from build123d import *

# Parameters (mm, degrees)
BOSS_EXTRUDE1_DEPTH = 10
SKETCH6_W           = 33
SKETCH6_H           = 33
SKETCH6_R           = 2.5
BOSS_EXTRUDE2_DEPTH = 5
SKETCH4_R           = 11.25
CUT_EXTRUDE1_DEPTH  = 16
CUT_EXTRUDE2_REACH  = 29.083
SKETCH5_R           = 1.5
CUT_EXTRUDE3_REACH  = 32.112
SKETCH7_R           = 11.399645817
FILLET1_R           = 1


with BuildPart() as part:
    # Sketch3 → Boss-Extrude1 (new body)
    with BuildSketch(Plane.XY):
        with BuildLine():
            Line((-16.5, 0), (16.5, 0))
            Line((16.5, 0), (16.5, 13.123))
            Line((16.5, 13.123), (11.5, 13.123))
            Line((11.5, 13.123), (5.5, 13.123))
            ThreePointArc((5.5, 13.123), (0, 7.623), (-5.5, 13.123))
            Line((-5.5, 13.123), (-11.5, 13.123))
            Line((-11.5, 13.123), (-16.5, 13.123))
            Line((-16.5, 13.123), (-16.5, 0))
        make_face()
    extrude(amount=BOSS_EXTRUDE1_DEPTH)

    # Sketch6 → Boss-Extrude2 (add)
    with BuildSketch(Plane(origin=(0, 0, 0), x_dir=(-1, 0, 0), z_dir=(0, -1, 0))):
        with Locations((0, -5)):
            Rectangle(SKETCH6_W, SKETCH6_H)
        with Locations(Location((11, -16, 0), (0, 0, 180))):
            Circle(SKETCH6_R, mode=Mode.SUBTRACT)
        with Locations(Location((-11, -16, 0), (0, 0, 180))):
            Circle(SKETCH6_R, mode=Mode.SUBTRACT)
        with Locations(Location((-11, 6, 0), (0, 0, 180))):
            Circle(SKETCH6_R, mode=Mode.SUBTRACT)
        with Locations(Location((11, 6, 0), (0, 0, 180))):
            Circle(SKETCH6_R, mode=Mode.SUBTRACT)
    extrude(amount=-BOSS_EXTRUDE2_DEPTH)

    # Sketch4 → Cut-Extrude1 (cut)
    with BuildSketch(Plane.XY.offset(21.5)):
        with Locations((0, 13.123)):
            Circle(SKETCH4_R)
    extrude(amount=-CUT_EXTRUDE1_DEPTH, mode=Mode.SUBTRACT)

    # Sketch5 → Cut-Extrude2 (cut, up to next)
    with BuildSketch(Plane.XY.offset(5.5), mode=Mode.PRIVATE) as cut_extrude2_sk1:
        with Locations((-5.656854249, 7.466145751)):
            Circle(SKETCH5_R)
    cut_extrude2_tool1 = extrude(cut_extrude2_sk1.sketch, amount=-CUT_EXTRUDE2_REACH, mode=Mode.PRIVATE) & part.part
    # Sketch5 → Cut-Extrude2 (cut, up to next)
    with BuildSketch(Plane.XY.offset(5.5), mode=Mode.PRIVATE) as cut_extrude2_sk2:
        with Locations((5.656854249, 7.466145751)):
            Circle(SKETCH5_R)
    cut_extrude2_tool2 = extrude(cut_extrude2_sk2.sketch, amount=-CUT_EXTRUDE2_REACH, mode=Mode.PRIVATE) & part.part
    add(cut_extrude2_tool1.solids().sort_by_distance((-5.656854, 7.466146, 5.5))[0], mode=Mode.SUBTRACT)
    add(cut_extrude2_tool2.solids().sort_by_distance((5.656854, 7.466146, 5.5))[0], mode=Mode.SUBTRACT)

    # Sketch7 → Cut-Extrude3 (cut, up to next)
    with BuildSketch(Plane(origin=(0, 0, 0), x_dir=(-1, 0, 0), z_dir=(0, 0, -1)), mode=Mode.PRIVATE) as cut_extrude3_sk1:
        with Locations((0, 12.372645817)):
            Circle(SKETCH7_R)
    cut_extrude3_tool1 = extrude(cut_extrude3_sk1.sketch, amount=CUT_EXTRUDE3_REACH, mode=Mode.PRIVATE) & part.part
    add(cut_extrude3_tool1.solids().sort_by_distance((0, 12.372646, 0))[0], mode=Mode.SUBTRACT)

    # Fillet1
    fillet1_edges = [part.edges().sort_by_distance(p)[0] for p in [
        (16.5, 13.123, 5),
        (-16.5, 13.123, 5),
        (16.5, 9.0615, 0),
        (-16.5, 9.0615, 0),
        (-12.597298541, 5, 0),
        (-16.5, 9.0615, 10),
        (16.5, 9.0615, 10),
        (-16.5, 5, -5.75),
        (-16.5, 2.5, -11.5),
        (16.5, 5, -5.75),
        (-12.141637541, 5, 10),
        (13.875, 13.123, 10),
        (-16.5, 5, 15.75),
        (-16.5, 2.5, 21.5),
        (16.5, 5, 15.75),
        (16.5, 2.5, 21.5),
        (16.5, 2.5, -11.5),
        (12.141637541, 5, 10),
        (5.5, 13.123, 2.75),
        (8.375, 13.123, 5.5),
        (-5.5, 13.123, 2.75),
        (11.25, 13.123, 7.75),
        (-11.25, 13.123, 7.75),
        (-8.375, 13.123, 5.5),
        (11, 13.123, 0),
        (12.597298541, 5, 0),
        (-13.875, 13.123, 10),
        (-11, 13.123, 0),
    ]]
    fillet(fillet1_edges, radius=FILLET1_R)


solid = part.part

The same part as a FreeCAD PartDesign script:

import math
import FreeCAD as App
import Part
import Sketcher

V = App.Vector
Q = App.Units.Quantity


def edges_at(feature, points):
    """Names of the edges that pass closest to the given points."""
    edges = feature.Shape.Edges
    near = lambda p: min(range(len(edges)), key=lambda i: edges[i].distToShape(Part.Vertex(*p))[0])
    return sorted({f"Edge{near(p) + 1}" for p in points})


def add_polygon(sketch, points):
    """Adds a closed chain of lines whose ends are joined by coincident constraints."""
    first, n = sketch.GeometryCount, len(points)
    for a, b in zip(points, points[1:] + points[:1]):
        sketch.addGeometry(Part.LineSegment(App.Vector(*a, 0), App.Vector(*b, 0)), False)
    for i in range(n):
        sketch.addConstraint(Sketcher.Constraint("Coincident", first + i, 2, first + (i + 1) % n, 1))

doc = App.newDocument("Part")
params = doc.addObject("Spreadsheet::Sheet", "Params")
for row, (alias, value) in enumerate([
    ("sketch1_radius", "5.5 mm"),
    ("sketch1_width", "33 mm"),
    ("pad1_length", "10 mm"),
    ("sketch2_diameter", "5 mm"),
    ("sketch2_width", "33 mm"),
    ("pad2_length", "5 mm"),
    ("sketch3_diameter", "22.5 mm"),
    ("pocket1_length", "16 mm"),
    ("sketch4_diameter", "3 mm"),
    ("sketch5_diameter", "3 mm"),
    ("pocket4_length", "11.5 mm"),
    ("fillet_radius", "1 mm"),
], start=1):
    params.set(f"A{row}", alias)
    params.set(f"B{row}", "=" + value)
    params.setAlias(f"B{row}", alias)

body = doc.addObject("PartDesign::Body", "Body")

sketch1 = doc.addObject("Sketcher::SketchObject", "Sketch")
body.addObject(sketch1)
sketch1.AttachmentSupport = (doc.XY_Plane, [""])
sketch1.MapMode = "FlatFace"
sketch1.addGeometry(Part.LineSegment(V(-16, 0, 0), V(16, 0, 0)), False)
sketch1.addGeometry(Part.LineSegment(V(16, 0, 0), V(16, 13, 0)), False)
sketch1.addGeometry(Part.LineSegment(V(16, 13, 0), V(6, 13, 0)), False)
sketch1.addGeometry(Part.ArcOfCircle(Part.Circle(V(0, 13, 0), V(0, 0, 1), 6), math.radians(180), math.radians(360)), False)
sketch1.addGeometry(Part.LineSegment(V(-6, 13, 0), V(-16, 13, 0)), False)
sketch1.addGeometry(Part.LineSegment(V(-16, 13, 0), V(-16, 0, 0)), False)
sketch1.addConstraint(Sketcher.Constraint("Coincident", 0, 2, 1, 1))
sketch1.addConstraint(Sketcher.Constraint("Coincident", 1, 2, 2, 1))
sketch1.addConstraint(Sketcher.Constraint("Coincident", 2, 2, 3, 2))
sketch1.addConstraint(Sketcher.Constraint("Coincident", 3, 1, 4, 1))
sketch1.addConstraint(Sketcher.Constraint("Coincident", 4, 2, 5, 1))
sketch1.addConstraint(Sketcher.Constraint("Coincident", 5, 2, 0, 1))
sketch1.addConstraint(Sketcher.Constraint("Horizontal", 0))
sketch1.addConstraint(Sketcher.Constraint("Vertical", 1))
sketch1.addConstraint(Sketcher.Constraint("Horizontal", 2))
sketch1.addConstraint(Sketcher.Constraint("Horizontal", 4))
sketch1.addConstraint(Sketcher.Constraint("Vertical", 5))
sketch1.addConstraint(Sketcher.Constraint("Symmetric", 0, 2, 5, 2, -1, 1))
sketch1.addConstraint(Sketcher.Constraint("Symmetric", 2, 2, 3, 1, -2))
sketch1.addConstraint(Sketcher.Constraint("Horizontal", 3, 3, 1, 2))
sketch1.addConstraint(Sketcher.Constraint("Radius", 3, Q("5.5 mm")))
sketch1.addConstraint(Sketcher.Constraint("DistanceX", 0, 1, 0, 2, Q("33 mm")))
sketch1.addConstraint(Sketcher.Constraint("DistanceY", 1, 1, 1, 2, Q("13.123 mm")))
sketch1.setExpression("Constraints[14]", "Params.sketch1_radius")
sketch1.setExpression("Constraints[15]", "Params.sketch1_width")
pad1 = doc.addObject("PartDesign::Pad", "Pad")
body.addObject(pad1)
pad1.Profile = sketch1
pad1.setExpression("Length", "Params.pad1_length")

sketch2 = doc.addObject("Sketcher::SketchObject", "Sketch001")
body.addObject(sketch2)
sketch2.AttachmentSupport = (doc.XZ_Plane, [""])
sketch2.MapMode = "FlatFace"
add_polygon(sketch2, [(16.5, -11.5), (16.5, 21.5), (-16.5, 21.5), (-16.5, -11.5)])
sketch2.addGeometry(Part.Circle(V(11, 16, 0), V(0, 0, 1), 2.5), False)
sketch2.addGeometry(Part.Circle(V(-11, 16, 0), V(0, 0, 1), 2.5), False)
sketch2.addGeometry(Part.Circle(V(11, -6, 0), V(0, 0, 1), 2.5), False)
sketch2.addGeometry(Part.Circle(V(-11, -6, 0), V(0, 0, 1), 2.5), False)
sketch2.addConstraint(Sketcher.Constraint("Vertical", 0))
sketch2.addConstraint(Sketcher.Constraint("Horizontal", 1))
sketch2.addConstraint(Sketcher.Constraint("Vertical", 2))
sketch2.addConstraint(Sketcher.Constraint("Horizontal", 3))
sketch2.addConstraint(Sketcher.Constraint("Equal", 4, 5))
sketch2.addConstraint(Sketcher.Constraint("Equal", 5, 6))
sketch2.addConstraint(Sketcher.Constraint("Equal", 6, 7))
sketch2.addConstraint(Sketcher.Constraint("Symmetric", 4, 3, 5, 3, -2))
sketch2.addConstraint(Sketcher.Constraint("Symmetric", 6, 3, 7, 3, -2))
sketch2.addConstraint(Sketcher.Constraint("Vertical", 4, 3, 6, 3))
sketch2.addConstraint(Sketcher.Constraint("Equal", 3, 0))
sketch2.addConstraint(Sketcher.Constraint("Diameter", 4, Q("5 mm")))
sketch2.addConstraint(Sketcher.Constraint("DistanceX", 1, 2, 1, 1, Q("33 mm")))
sketch2.addConstraint(Sketcher.Constraint("DistanceX", -1, 1, 4, 3, Q("11 mm")))
sketch2.addConstraint(Sketcher.Constraint("DistanceY", -1, 1, 4, 3, Q("16 mm")))
sketch2.addConstraint(Sketcher.Constraint("DistanceY", 6, 3, -1, 1, Q("6 mm")))
sketch2.addConstraint(Sketcher.Constraint("DistanceX", -1, 1, 0, 2, Q("16.5 mm")))
sketch2.addConstraint(Sketcher.Constraint("DistanceY", -1, 1, 0, 2, Q("21.5 mm")))
sketch2.setExpression("Constraints[15]", "Params.sketch2_diameter")
sketch2.setExpression("Constraints[16]", "Params.sketch2_width")
pad2 = doc.addObject("PartDesign::Pad", "Pad001")
body.addObject(pad2)
pad2.Profile = sketch2
pad2.setExpression("Length", "Params.pad2_length")
pad2.Reversed = True

sketch3 = doc.addObject("Sketcher::SketchObject", "Sketch002")
body.addObject(sketch3)
sketch3.AttachmentSupport = (doc.XY_Plane, [""])
sketch3.MapMode = "FlatFace"
sketch3.AttachmentOffset = App.Placement(V(0, 0, 21.5), App.Rotation())
sketch3.addGeometry(Part.Circle(V(0, 13, 0), V(0, 0, 1), 11), False)
sketch3.addConstraint(Sketcher.Constraint("PointOnObject", 0, 3, -2))
sketch3.addConstraint(Sketcher.Constraint("Diameter", 0, Q("22.5 mm")))
sketch3.addConstraint(Sketcher.Constraint("DistanceY", -1, 1, 0, 3, Q("13.123 mm")))
sketch3.setExpression("Constraints[1]", "Params.sketch3_diameter")
pocket1 = doc.addObject("PartDesign::Pocket", "Pocket")
body.addObject(pocket1)
pocket1.Profile = sketch3
pocket1.setExpression("Length", "Params.pocket1_length")

sketch4 = doc.addObject("Sketcher::SketchObject", "Sketch003")
body.addObject(sketch4)
sketch4.AttachmentSupport = (doc.XY_Plane, [""])
sketch4.MapMode = "FlatFace"
sketch4.AttachmentOffset = App.Placement(V(0, 0, 5.5), App.Rotation())
sketch4.addGeometry(Part.Circle(V(-5.7, 7.5, 0), V(0, 0, 1), 1.5), False)
sketch4.addConstraint(Sketcher.Constraint("Diameter", 0, Q("3 mm")))
sketch4.addConstraint(Sketcher.Constraint("DistanceX", 0, 3, -1, 1, Q("5.656854 mm")))
sketch4.addConstraint(Sketcher.Constraint("DistanceY", -1, 1, 0, 3, Q("7.466146 mm")))
sketch4.setExpression("Constraints[0]", "Params.sketch4_diameter")
pocket2 = doc.addObject("PartDesign::Pocket", "Pocket001")
body.addObject(pocket2)
pocket2.Profile = sketch4
pocket2.Type = "UpToFirst"

sketch5 = doc.addObject("Sketcher::SketchObject", "Sketch004")
body.addObject(sketch5)
sketch5.AttachmentSupport = (doc.XY_Plane, [""])
sketch5.MapMode = "FlatFace"
sketch5.AttachmentOffset = App.Placement(V(0, 0, 5.5), App.Rotation())
sketch5.addGeometry(Part.Circle(V(5.7, 7.5, 0), V(0, 0, 1), 1.5), False)
sketch5.addConstraint(Sketcher.Constraint("Diameter", 0, Q("3 mm")))
sketch5.addConstraint(Sketcher.Constraint("DistanceX", -1, 1, 0, 3, Q("5.656854 mm")))
sketch5.addConstraint(Sketcher.Constraint("DistanceY", -1, 1, 0, 3, Q("7.466146 mm")))
sketch5.setExpression("Constraints[0]", "Params.sketch5_diameter")
pocket3 = doc.addObject("PartDesign::Pocket", "Pocket002")
body.addObject(pocket3)
pocket3.Profile = sketch5
pocket3.Type = "UpToFirst"

sketch6 = doc.addObject("Sketcher::SketchObject", "Sketch005")
body.addObject(sketch6)
sketch6.AttachmentSupport = (doc.XY_Plane, [""])
sketch6.MapMode = "FlatFace"
sketch6.addGeometry(Part.Circle(V(0, 12, 0), V(0, 0, 1), 11), False)
sketch6.addConstraint(Sketcher.Constraint("PointOnObject", 0, 3, -2))
sketch6.addConstraint(Sketcher.Constraint("Diameter", 0, Q("22.799292 mm")))
sketch6.addConstraint(Sketcher.Constraint("DistanceY", -1, 1, 0, 3, Q("12.372646 mm")))
pocket4 = doc.addObject("PartDesign::Pocket", "Pocket003")
body.addObject(pocket4)
pocket4.Profile = sketch6
pocket4.setExpression("Length", "Params.pocket4_length")
doc.recompute()

fillet = doc.addObject("PartDesign::Fillet", "Fillet")
body.addObject(fillet)
fillet.Base = (pocket4, edges_at(pocket4, [
    (16.5, 13.123, 5),
    (-16.5, 13.123, 5),
    (16.5, 9.062, 0),
    (-16.5, 9.062, 0),
    (-12.597, 5, 0),
    (-16.5, 9.062, 10),
    (16.5, 9.062, 10),
    (-16.5, 5, -5.75),
    (-16.5, 2.5, -11.5),
    (16.5, 5, -5.75),
    (-12.142, 5, 10),
    (13.875, 13.123, 10),
    (-16.5, 5, 15.75),
    (-16.5, 2.5, 21.5),
    (16.5, 5, 15.75),
    (16.5, 2.5, 21.5),
    (16.5, 2.5, -11.5),
    (12.142, 5, 10),
    (5.5, 13.123, 2.75),
    (8.375, 13.123, 5.5),
    (-5.5, 13.123, 2.75),
    (11.25, 13.123, 7.75),
    (-11.25, 13.123, 7.75),
    (-8.375, 13.123, 5.5),
    (11, 13.123, 0),
    (12.597, 5, 0),
    (-13.875, 13.123, 10),
    (-11, 13.123, 0),
]))
fillet.setExpression("Radius", "Params.fillet_radius")

doc.recompute()
